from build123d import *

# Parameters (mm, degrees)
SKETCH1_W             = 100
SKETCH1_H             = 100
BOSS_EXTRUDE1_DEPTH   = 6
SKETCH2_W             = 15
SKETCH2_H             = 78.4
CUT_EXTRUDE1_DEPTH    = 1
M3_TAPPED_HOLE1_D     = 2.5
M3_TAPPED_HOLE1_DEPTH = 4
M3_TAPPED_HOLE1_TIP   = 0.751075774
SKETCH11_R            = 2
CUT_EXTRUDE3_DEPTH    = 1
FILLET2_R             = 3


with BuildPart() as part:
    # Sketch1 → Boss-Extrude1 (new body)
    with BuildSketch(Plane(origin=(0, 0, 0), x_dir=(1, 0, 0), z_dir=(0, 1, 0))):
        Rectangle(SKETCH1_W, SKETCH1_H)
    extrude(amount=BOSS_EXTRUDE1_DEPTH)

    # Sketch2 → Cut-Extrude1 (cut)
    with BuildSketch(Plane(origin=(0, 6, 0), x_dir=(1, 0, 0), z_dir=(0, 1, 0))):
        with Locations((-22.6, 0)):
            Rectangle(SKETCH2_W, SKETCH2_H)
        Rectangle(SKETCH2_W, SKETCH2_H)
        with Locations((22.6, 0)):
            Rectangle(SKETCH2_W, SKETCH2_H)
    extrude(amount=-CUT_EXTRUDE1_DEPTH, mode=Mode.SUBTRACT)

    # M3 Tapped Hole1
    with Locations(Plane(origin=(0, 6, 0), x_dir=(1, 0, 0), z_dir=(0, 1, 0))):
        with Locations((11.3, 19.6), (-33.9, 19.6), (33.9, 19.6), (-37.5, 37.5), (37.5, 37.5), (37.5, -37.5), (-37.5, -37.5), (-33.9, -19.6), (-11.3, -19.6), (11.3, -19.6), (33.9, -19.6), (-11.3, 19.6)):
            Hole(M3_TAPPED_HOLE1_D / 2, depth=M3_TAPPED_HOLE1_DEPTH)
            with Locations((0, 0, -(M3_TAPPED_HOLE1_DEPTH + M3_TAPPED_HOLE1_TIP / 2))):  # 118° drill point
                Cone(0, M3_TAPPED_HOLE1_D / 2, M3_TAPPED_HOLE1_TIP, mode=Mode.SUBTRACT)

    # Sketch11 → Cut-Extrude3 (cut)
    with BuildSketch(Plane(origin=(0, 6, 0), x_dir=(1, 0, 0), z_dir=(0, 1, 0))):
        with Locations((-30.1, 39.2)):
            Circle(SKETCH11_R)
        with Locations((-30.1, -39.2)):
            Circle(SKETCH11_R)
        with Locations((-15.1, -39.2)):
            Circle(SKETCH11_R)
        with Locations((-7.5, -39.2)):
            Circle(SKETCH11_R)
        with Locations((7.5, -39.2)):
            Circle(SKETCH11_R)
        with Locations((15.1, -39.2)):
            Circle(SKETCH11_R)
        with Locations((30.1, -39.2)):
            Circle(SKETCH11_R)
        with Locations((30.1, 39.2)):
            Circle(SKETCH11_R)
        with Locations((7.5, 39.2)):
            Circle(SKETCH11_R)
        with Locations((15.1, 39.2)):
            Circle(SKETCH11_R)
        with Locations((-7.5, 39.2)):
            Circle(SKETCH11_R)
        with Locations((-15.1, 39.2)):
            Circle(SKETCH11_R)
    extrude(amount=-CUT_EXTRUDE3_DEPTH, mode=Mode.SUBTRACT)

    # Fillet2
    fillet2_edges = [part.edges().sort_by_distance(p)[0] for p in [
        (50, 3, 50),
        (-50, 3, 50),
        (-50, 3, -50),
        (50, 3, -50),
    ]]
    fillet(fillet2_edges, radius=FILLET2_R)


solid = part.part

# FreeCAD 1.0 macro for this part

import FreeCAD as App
import Part
import Sketcher


def edges_at(feature, points):
    """Names of the edges that pass closest to the given points."""
    edges = feature.Shape.Edges
    near = lambda p: min(range(len(edges)), key=lambda i: edges[i].distToShape(Part.Vertex(*p))[0])
    return sorted({f"Edge{near(p) + 1}" for p in points})


def add_polygon(sketch, points):
    """Adds a closed chain of lines whose ends are joined by coincident constraints."""
    first, n = sketch.GeometryCount, len(points)
    for a, b in zip(points, points[1:] + points[:1]):
        sketch.addGeometry(Part.LineSegment(App.Vector(*a, 0), App.Vector(*b, 0)), False)
    for i in range(n):
        sketch.addConstraint(Sketcher.Constraint("Coincident", first + i, 2, first + (i + 1) % n, 1))

doc = App.newDocument("Part")
body = doc.addObject("PartDesign::Body", "Body")

sketch1 = body.newObject("Sketcher::SketchObject", "Sketch")
sketch1.AttachmentSupport = (doc.getObject("XZ_Plane"), [""])
sketch1.MapMode = "FlatFace"
add_polygon(sketch1, [(-50, -50), (-50, 50), (50, 50), (50, -50)])
sketch1.addConstraint(Sketcher.Constraint("Vertical", 0))
sketch1.addConstraint(Sketcher.Constraint("Horizontal", 1))
sketch1.addConstraint(Sketcher.Constraint("Vertical", 2))
sketch1.addConstraint(Sketcher.Constraint("Horizontal", 3))
sketch1.addConstraint(Sketcher.Constraint("Symmetric", 0, 2, 2, 2, -1, 1))
sketch1.addConstraint(Sketcher.Constraint("Equal", 3, 0))
sketch1.addConstraint(Sketcher.Constraint("DistanceX", 1, 1, 1, 2, 100.0))
pad1 = body.newObject("PartDesign::Pad", "Pad")
pad1.Profile = sketch1
pad1.Length = 6
pad1.Reversed = True

sketch2 = body.newObject("Sketcher::SketchObject", "Sketch001")
sketch2.AttachmentSupport = (doc.getObject("XZ_Plane"), [""])
sketch2.MapMode = "FlatFace"
sketch2.AttachmentOffset = App.Placement(App.Vector(0, 0, -6), App.Rotation())
add_polygon(sketch2, [(-30, -39), (-30, 39), (-15, 39), (-15, -39)])
add_polygon(sketch2, [(-8, -39), (-8, 39), (8, 39), (8, -39)])
add_polygon(sketch2, [(15, -39), (15, 39), (30, 39), (30, -39)])
sketch2.addConstraint(Sketcher.Constraint("Vertical", 0))
sketch2.addConstraint(Sketcher.Constraint("Horizontal", 1))
sketch2.addConstraint(Sketcher.Constraint("Vertical", 2))
sketch2.addConstraint(Sketcher.Constraint("Horizontal", 3))
sketch2.addConstraint(Sketcher.Constraint("Vertical", 4))
sketch2.addConstraint(Sketcher.Constraint("Horizontal", 5))
sketch2.addConstraint(Sketcher.Constraint("Vertical", 6))
sketch2.addConstraint(Sketcher.Constraint("Horizontal", 7))
sketch2.addConstraint(Sketcher.Constraint("Vertical", 8))
sketch2.addConstraint(Sketcher.Constraint("Horizontal", 9))
sketch2.addConstraint(Sketcher.Constraint("Vertical", 10))
sketch2.addConstraint(Sketcher.Constraint("Horizontal", 11))
sketch2.addConstraint(Sketcher.Constraint("Symmetric", 4, 2, 6, 2, -1, 1))
sketch2.addConstraint(Sketcher.Constraint("Symmetric", 2, 2, 8, 2, -1, 1))
sketch2.addConstraint(Sketcher.Constraint("Symmetric", 0, 2, 10, 2, -1, 1))
sketch2.addConstraint(Sketcher.Constraint("Horizontal", 1, 2, 4, 2))
sketch2.addConstraint(Sketcher.Constraint("Horizontal", 3, 2, 6, 2))
sketch2.addConstraint(Sketcher.Constraint("Equal", 3, 5))
sketch2.addConstraint(Sketcher.Constraint("DistanceX", 1, 1, 1, 2, 15.0))
sketch2.addConstraint(Sketcher.Constraint("DistanceY", 0, 1, 0, 2, 78.4))
sketch2.addConstraint(Sketcher.Constraint("DistanceX", 0, 2, -1, 1, 30.1))
pocket1 = body.newObject("PartDesign::Pocket", "Pocket")
pocket1.Profile = sketch2
pocket1.Length = 1
pocket1.Reversed = True

sketch3 = body.newObject("Sketcher::SketchObject", "Sketch002")
sketch3.AttachmentSupport = (doc.getObject("XZ_Plane"), [""])
sketch3.MapMode = "FlatFace"
sketch3.AttachmentOffset = App.Placement(App.Vector(0, 0, -6), App.Rotation())
sketch3.addGeometry(Part.Circle(App.Vector(11.3, -19.6, 0), App.Vector(0, 0, 1), 1.2), False)
sketch3.addGeometry(Part.Circle(App.Vector(-33.9, -19.6, 0), App.Vector(0, 0, 1), 1.2), False)
sketch3.addGeometry(Part.Circle(App.Vector(33.9, -19.6, 0), App.Vector(0, 0, 1), 1.2), False)
sketch3.addGeometry(Part.Circle(App.Vector(-37.5, -37.5, 0), App.Vector(0, 0, 1), 1.2), False)
sketch3.addGeometry(Part.Circle(App.Vector(37.5, -37.5, 0), App.Vector(0, 0, 1), 1.2), False)
sketch3.addGeometry(Part.Circle(App.Vector(37.5, 37.5, 0), App.Vector(0, 0, 1), 1.2), False)
sketch3.addGeometry(Part.Circle(App.Vector(-37.5, 37.5, 0), App.Vector(0, 0, 1), 1.2), False)
sketch3.addGeometry(Part.Circle(App.Vector(-33.9, 19.6, 0), App.Vector(0, 0, 1), 1.2), False)
sketch3.addGeometry(Part.Circle(App.Vector(-11.3, 19.6, 0), App.Vector(0, 0, 1), 1.2), False)
sketch3.addGeometry(Part.Circle(App.Vector(11.3, 19.6, 0), App.Vector(0, 0, 1), 1.2), False)
sketch3.addGeometry(Part.Circle(App.Vector(33.9, 19.6, 0), App.Vector(0, 0, 1), 1.2), False)
sketch3.addGeometry(Part.Circle(App.Vector(-11.3, -19.6, 0), App.Vector(0, 0, 1), 1.2), False)
sketch3.addConstraint(Sketcher.Constraint("Equal", 0, 1))
sketch3.addConstraint(Sketcher.Constraint("Equal", 1, 2))
sketch3.addConstraint(Sketcher.Constraint("Equal", 2, 3))
sketch3.addConstraint(Sketcher.Constraint("Equal", 3, 4))
sketch3.addConstraint(Sketcher.Constraint("Equal", 4, 5))
sketch3.addConstraint(Sketcher.Constraint("Equal", 5, 6))
sketch3.addConstraint(Sketcher.Constraint("Equal", 6, 7))
sketch3.addConstraint(Sketcher.Constraint("Equal", 7, 8))
sketch3.addConstraint(Sketcher.Constraint("Equal", 8, 9))
sketch3.addConstraint(Sketcher.Constraint("Equal", 9, 10))
sketch3.addConstraint(Sketcher.Constraint("Equal", 10, 11))
sketch3.addConstraint(Sketcher.Constraint("Symmetric", 3, 3, 5, 3, -1, 1))
sketch3.addConstraint(Sketcher.Constraint("Symmetric", 4, 3, 6, 3, -1, 1))
sketch3.addConstraint(Sketcher.Constraint("Symmetric", 2, 3, 7, 3, -1, 1))
sketch3.addConstraint(Sketcher.Constraint("Symmetric", 0, 3, 8, 3, -1, 1))
sketch3.addConstraint(Sketcher.Constraint("Symmetric", 1, 3, 10, 3, -1, 1))
sketch3.addConstraint(Sketcher.Constraint("Symmetric", 9, 3, 11, 3, -1, 1))
sketch3.addConstraint(Sketcher.Constraint("Symmetric", 1, 3, 2, 3, -2))
sketch3.addConstraint(Sketcher.Constraint("Symmetric", 3, 3, 4, 3, -2))
sketch3.addConstraint(Sketcher.Constraint("Symmetric", 8, 3, 9, 3, -2))
sketch3.addConstraint(Sketcher.Constraint("Horizontal", 0, 3, 1, 3))
sketch3.addConstraint(Sketcher.Constraint("Diameter", 0, 2.5))
sketch3.addConstraint(Sketcher.Constraint("DistanceX", 3, 3, 4, 3, 75.0))
sketch3.addConstraint(Sketcher.Constraint("DistanceY", 4, 3, 5, 3, 75.0))
sketch3.addConstraint(Sketcher.Constraint("DistanceX", -1, 1, 0, 3, 11.3))
sketch3.addConstraint(Sketcher.Constraint("DistanceY", 0, 3, -1, 1, 19.6))
sketch3.addConstraint(Sketcher.Constraint("DistanceX", 1, 3, -1, 1, 33.9))
doc.recompute()
hole = body.newObject("PartDesign::Hole", "Hole")
hole.Profile = sketch3
hole.ThreadType = "None"
hole.Diameter = 2.5
hole.DepthType = "Dimension"
hole.Depth = 4
hole.DrillPoint = "Angled"
hole.DrillPointAngle = 118
hole.Reversed = True

sketch4 = body.newObject("Sketcher::SketchObject", "Sketch003")
sketch4.AttachmentSupport = (doc.getObject("XZ_Plane"), [""])
sketch4.MapMode = "FlatFace"
sketch4.AttachmentOffset = App.Placement(App.Vector(0, 0, -6), App.Rotation())
sketch4.addGeometry(Part.Circle(App.Vector(-30.1, -39.2, 0), App.Vector(0, 0, 1), 2), False)
sketch4.addGeometry(Part.Circle(App.Vector(-30.1, 39.2, 0), App.Vector(0, 0, 1), 2), False)
sketch4.addGeometry(Part.Circle(App.Vector(-15.1, 39.2, 0), App.Vector(0, 0, 1), 2), False)
sketch4.addGeometry(Part.Circle(App.Vector(-7.5, 39.2, 0), App.Vector(0, 0, 1), 2), False)
sketch4.addGeometry(Part.Circle(App.Vector(7.5, 39.2, 0), App.Vector(0, 0, 1), 2), False)
sketch4.addGeometry(Part.Circle(App.Vector(15.1, 39.2, 0), App.Vector(0, 0, 1), 2), False)
sketch4.addGeometry(Part.Circle(App.Vector(30.1, 39.2, 0), App.Vector(0, 0, 1), 2), False)
sketch4.addGeometry(Part.Circle(App.Vector(30.1, -39.2, 0), App.Vector(0, 0, 1), 2), False)
sketch4.addGeometry(Part.Circle(App.Vector(7.5, -39.2, 0), App.Vector(0, 0, 1), 2), False)
sketch4.addGeometry(Part.Circle(App.Vector(15.1, -39.2, 0), App.Vector(0, 0, 1), 2), False)
sketch4.addGeometry(Part.Circle(App.Vector(-7.5, -39.2, 0), App.Vector(0, 0, 1), 2), False)
sketch4.addGeometry(Part.Circle(App.Vector(-15.1, -39.2, 0), App.Vector(0, 0, 1), 2), False)
sketch4.addConstraint(Sketcher.Constraint("Equal", 0, 1))
sketch4.addConstraint(Sketcher.Constraint("Equal", 1, 2))
sketch4.addConstraint(Sketcher.Constraint("Equal", 2, 3))
sketch4.addConstraint(Sketcher.Constraint("Equal", 3, 4))
sketch4.addConstraint(Sketcher.Constraint("Equal", 4, 5))
sketch4.addConstraint(Sketcher.Constraint("Equal", 5, 6))
sketch4.addConstraint(Sketcher.Constraint("Equal", 6, 7))
sketch4.addConstraint(Sketcher.Constraint("Equal", 7, 8))
sketch4.addConstraint(Sketcher.Constraint("Equal", 8, 9))
sketch4.addConstraint(Sketcher.Constraint("Equal", 9, 10))
sketch4.addConstraint(Sketcher.Constraint("Equal", 10, 11))
sketch4.addConstraint(Sketcher.Constraint("Symmetric", 0, 3, 6, 3, -1, 1))
sketch4.addConstraint(Sketcher.Constraint("Symmetric", 1, 3, 7, 3, -1, 1))
sketch4.addConstraint(Sketcher.Constraint("Symmetric", 3, 3, 8, 3, -1, 1))
sketch4.addConstraint(Sketcher.Constraint("Symmetric", 2, 3, 9, 3, -1, 1))
sketch4.addConstraint(Sketcher.Constraint("Symmetric", 4, 3, 10, 3, -1, 1))
sketch4.addConstraint(Sketcher.Constraint("Symmetric", 5, 3, 11, 3, -1, 1))
sketch4.addConstraint(Sketcher.Constraint("Symmetric", 3, 3, 4, 3, -2))
sketch4.addConstraint(Sketcher.Constraint("Symmetric", 2, 3, 5, 3, -2))
sketch4.addConstraint(Sketcher.Constraint("Symmetric", 1, 3, 6, 3, -2))
sketch4.addConstraint(Sketcher.Constraint("Horizontal", 1, 3, 2, 3))
sketch4.addConstraint(Sketcher.Constraint("Horizontal", 2, 3, 3, 3))
sketch4.addConstraint(Sketcher.Constraint("Diameter", 0, 4.0))
sketch4.addConstraint(Sketcher.Constraint("DistanceX", 1, 3, 2, 3, 15.0))
sketch4.addConstraint(Sketcher.Constraint("DistanceX", 3, 3, 4, 3, 15.0))
sketch4.addConstraint(Sketcher.Constraint("DistanceX", 0, 3, -1, 1, 30.1))
sketch4.addConstraint(Sketcher.Constraint("DistanceY", 0, 3, -1, 1, 39.2))
pocket2 = body.newObject("PartDesign::Pocket", "Pocket001")
pocket2.Profile = sketch4
pocket2.Length = 1
pocket2.Reversed = True
doc.recompute()

fillet = body.newObject("PartDesign::Fillet", "Fillet")
fillet.Base = (pocket2, edges_at(pocket2, [
    (50, 3, 50),
    (-50, 3, 50),
    (-50, 3, -50),
    (50, 3, -50),
]))
fillet.Radius = 3

doc.recompute()
